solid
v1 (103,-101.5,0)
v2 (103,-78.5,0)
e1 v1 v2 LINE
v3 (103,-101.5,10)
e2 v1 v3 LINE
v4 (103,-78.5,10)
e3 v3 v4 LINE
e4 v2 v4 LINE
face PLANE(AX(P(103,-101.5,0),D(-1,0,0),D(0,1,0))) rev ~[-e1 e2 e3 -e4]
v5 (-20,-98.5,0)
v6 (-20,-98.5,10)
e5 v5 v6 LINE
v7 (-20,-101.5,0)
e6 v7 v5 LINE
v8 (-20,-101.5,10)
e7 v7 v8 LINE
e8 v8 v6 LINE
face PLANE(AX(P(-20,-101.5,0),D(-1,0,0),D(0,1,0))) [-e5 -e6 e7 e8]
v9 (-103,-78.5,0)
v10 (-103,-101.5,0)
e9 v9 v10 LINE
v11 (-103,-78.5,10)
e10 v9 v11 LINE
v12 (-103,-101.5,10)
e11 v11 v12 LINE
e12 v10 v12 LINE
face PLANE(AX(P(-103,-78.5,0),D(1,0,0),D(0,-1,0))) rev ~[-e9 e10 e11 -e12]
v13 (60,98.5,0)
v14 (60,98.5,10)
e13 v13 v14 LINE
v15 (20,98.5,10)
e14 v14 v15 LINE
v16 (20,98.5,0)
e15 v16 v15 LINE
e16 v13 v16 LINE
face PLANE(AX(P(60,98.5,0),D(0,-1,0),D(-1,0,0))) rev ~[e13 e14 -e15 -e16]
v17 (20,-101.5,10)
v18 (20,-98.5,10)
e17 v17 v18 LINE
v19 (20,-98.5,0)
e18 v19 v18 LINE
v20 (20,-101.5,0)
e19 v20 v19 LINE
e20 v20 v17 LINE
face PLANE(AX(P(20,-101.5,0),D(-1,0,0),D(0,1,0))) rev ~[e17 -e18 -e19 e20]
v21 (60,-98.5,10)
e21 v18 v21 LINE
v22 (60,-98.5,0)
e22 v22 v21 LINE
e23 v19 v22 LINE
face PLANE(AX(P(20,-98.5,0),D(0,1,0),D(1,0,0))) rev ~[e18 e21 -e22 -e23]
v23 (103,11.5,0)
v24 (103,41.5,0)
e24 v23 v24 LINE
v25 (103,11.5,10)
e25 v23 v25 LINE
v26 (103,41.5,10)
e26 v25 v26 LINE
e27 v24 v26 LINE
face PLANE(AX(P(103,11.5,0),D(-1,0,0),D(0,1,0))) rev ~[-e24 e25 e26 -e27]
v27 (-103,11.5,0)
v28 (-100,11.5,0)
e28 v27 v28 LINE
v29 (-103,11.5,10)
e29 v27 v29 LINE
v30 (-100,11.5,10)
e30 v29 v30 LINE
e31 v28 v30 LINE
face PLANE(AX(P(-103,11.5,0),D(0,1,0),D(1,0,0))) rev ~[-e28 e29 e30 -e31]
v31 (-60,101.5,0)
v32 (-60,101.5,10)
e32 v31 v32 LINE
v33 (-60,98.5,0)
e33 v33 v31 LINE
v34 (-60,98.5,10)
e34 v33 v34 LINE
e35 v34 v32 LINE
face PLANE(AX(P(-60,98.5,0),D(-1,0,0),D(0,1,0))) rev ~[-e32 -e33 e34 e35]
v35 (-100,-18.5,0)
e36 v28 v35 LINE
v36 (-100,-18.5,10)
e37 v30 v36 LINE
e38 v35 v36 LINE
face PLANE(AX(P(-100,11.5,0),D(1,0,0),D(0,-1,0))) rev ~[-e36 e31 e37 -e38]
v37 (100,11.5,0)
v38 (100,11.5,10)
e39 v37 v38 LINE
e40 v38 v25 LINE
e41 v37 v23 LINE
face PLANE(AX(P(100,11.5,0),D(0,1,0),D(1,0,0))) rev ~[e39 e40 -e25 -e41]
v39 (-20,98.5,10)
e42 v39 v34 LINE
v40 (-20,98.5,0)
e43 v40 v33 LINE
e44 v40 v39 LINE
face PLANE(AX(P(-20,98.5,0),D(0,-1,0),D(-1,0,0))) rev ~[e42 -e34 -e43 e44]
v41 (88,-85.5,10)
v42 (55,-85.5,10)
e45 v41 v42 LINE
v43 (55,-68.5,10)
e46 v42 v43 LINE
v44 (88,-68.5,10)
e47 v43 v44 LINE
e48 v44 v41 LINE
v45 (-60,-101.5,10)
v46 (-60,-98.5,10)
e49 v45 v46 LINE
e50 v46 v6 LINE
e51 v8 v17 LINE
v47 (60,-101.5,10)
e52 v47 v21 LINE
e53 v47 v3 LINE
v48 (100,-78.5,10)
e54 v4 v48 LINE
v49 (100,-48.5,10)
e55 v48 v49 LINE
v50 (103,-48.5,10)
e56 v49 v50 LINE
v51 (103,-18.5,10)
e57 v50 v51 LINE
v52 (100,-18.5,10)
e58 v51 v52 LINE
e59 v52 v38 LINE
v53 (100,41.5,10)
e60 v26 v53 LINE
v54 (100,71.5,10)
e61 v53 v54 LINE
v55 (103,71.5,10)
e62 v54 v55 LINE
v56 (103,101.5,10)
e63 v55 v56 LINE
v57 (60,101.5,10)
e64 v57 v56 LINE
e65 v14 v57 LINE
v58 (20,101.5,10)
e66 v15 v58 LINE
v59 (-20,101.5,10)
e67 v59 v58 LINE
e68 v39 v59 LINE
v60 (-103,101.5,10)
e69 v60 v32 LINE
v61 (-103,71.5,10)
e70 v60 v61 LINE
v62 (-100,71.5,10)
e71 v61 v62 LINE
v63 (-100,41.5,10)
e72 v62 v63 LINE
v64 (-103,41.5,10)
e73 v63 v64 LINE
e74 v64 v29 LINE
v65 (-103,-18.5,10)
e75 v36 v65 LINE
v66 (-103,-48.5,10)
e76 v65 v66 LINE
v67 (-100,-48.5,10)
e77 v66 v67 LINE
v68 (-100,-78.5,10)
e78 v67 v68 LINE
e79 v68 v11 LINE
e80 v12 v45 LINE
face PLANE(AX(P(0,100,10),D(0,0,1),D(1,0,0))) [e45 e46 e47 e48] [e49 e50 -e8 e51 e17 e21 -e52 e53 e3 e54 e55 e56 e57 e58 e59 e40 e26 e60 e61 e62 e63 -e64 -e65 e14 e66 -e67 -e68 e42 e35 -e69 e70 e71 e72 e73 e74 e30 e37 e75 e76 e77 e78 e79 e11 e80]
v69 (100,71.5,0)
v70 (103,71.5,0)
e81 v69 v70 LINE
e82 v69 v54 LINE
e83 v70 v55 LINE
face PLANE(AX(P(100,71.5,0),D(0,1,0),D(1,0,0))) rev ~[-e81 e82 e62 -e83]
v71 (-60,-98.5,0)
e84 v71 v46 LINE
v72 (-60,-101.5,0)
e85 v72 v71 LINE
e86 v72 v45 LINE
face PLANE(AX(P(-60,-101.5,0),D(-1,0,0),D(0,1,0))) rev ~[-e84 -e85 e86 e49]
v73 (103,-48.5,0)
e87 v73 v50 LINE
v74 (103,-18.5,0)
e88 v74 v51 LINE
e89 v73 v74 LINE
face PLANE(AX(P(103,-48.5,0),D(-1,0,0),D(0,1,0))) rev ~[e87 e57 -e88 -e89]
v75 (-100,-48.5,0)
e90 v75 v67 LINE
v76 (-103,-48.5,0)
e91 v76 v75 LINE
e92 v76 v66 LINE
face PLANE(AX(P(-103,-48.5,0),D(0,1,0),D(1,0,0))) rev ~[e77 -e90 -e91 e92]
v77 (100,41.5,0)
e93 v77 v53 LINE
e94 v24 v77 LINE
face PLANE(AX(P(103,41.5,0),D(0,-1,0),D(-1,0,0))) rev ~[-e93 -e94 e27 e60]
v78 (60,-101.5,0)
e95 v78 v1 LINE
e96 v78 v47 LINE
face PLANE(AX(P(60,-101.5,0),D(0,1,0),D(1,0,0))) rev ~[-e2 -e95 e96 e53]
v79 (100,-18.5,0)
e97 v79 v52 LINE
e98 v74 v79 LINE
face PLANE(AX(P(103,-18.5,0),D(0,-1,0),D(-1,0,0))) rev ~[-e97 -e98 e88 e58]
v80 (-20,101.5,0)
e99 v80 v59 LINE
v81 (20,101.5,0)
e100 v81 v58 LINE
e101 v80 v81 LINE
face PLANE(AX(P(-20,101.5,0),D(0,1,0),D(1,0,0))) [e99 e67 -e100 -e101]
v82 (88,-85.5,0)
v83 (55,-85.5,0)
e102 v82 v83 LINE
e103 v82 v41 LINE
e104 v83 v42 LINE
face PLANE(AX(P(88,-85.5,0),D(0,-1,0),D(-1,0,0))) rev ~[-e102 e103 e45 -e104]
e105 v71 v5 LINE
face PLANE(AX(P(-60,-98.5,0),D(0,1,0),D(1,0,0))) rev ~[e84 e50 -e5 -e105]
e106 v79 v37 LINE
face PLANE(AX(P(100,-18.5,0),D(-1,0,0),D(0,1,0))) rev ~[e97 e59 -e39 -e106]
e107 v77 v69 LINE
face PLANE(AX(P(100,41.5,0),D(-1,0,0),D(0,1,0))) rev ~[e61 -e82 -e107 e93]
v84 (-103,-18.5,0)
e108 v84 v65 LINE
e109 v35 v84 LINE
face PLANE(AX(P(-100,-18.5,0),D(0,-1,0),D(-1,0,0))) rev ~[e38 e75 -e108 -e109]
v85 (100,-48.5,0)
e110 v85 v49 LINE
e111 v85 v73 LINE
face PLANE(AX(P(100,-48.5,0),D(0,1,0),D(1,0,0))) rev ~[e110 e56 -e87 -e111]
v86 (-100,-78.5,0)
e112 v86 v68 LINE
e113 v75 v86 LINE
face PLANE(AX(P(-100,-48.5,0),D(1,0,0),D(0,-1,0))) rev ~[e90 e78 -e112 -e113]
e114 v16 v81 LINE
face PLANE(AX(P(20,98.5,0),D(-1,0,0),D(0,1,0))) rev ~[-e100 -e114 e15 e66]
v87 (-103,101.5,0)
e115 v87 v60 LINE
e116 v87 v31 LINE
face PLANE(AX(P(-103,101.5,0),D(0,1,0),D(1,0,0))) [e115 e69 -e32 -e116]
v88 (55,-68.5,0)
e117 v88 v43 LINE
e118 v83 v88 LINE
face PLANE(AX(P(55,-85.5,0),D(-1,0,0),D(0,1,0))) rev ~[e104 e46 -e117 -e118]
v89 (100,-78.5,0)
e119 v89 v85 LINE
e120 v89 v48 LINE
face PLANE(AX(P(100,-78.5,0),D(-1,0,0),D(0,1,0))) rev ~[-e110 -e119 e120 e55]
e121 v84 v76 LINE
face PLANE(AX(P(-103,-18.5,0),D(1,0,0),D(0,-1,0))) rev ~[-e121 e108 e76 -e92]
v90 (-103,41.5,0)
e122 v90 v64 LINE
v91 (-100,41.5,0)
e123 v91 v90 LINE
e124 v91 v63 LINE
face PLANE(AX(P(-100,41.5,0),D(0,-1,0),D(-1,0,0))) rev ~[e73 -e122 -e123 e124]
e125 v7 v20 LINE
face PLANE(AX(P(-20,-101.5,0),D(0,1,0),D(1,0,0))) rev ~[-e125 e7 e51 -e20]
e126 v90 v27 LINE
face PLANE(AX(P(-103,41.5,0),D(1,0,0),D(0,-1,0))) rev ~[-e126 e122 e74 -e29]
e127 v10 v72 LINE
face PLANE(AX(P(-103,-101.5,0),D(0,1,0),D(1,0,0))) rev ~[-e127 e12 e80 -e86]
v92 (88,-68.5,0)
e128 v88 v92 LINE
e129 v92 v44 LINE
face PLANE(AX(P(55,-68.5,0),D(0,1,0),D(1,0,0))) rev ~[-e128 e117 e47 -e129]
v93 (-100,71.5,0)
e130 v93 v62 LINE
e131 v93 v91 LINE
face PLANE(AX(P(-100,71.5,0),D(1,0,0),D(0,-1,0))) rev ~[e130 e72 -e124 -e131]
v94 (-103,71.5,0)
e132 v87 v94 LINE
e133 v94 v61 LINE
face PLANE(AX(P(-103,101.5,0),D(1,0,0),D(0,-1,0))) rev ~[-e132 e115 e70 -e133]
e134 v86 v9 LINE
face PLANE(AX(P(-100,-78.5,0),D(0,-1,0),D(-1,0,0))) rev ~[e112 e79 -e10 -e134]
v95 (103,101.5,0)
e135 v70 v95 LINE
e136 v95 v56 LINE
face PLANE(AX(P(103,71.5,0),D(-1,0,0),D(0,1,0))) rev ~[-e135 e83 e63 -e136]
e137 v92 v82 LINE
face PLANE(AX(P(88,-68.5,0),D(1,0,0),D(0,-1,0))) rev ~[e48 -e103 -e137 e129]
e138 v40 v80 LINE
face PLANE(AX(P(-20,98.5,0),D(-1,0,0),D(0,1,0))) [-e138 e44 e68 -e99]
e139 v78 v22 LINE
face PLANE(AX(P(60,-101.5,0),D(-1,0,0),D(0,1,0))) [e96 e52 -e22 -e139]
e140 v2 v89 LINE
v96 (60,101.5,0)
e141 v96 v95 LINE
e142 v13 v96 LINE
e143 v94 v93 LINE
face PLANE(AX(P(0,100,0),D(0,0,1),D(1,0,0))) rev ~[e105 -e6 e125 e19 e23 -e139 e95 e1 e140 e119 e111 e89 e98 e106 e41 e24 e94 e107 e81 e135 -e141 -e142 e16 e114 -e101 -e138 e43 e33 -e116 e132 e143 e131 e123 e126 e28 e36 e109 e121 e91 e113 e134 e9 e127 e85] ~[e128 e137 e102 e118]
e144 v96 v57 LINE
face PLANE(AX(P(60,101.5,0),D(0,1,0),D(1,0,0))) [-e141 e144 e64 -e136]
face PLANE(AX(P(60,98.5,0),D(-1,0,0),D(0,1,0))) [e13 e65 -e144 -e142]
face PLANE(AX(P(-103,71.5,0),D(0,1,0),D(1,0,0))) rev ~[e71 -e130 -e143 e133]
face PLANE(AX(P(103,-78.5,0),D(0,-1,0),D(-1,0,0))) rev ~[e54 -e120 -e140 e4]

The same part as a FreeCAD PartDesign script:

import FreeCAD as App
import Part
import Sketcher

V = App.Vector

doc = App.newDocument("Part")
body = doc.addObject("PartDesign::Body", "Body")

sketch1 = body.newObject("Sketcher::SketchObject", "Sketch")
sketch1.AttachmentSupport = (doc.getObject("XY_Plane"), [""])
sketch1.MapMode = "FlatFace"
sketch1.addGeometry(Part.LineSegment(V(-20, 101.5, 0), V(-20, 98.5, 0)), False)
sketch1.addGeometry(Part.LineSegment(V(-20, 98.5, 0), V(-60, 98.5, 0)), False)
sketch1.addGeometry(Part.LineSegment(V(-60, 98.5, 0), V(-60, 101.5, 0)), False)
sketch1.addGeometry(Part.LineSegment(V(-60, 101.5, 0), V(-103, 101.5, 0)), False)
sketch1.addGeometry(Part.LineSegment(V(-103, 101.5, 0), V(-103, 71.5, 0)), False)
sketch1.addGeometry(Part.LineSegment(V(-103, 71.5, 0), V(-100, 71.5, 0)), False)
sketch1.addGeometry(Part.LineSegment(V(-100, 71.5, 0), V(-100, 41.5, 0)), False)
sketch1.addGeometry(Part.LineSegment(V(-100, 41.5, 0), V(-103, 41.5, 0)), False)
sketch1.addGeometry(Part.LineSegment(V(-103, 41.5, 0), V(-103, 11.5, 0)), False)
sketch1.addGeometry(Part.LineSegment(V(-103, 11.5, 0), V(-100, 11.5, 0)), False)
sketch1.addGeometry(Part.LineSegment(V(-100, 11.5, 0), V(-100, -18.5, 0)), False)
sketch1.addGeometry(Part.LineSegment(V(-100, -18.5, 0), V(-103, -18.5, 0)), False)
sketch1.addGeometry(Part.LineSegment(V(-103, -18.5, 0), V(-103, -48.5, 0)), False)
sketch1.addGeometry(Part.LineSegment(V(-103, -48.5, 0), V(-100, -48.5, 0)), False)
sketch1.addGeometry(Part.LineSegment(V(-100, -48.5, 0), V(-100, -78.5, 0)), False)
sketch1.addGeometry(Part.LineSegment(V(-100, -78.5, 0), V(-103, -78.5, 0)), False)
sketch1.addGeometry(Part.LineSegment(V(-103, -78.5, 0), V(-103, -101.5, 0)), False)
sketch1.addGeometry(Part.LineSegment(V(-103, -101.5, 0), V(-60, -101.5, 0)), False)
sketch1.addGeometry(Part.LineSegment(V(-60, -101.5, 0), V(-60, -98.5, 0)), False)
sketch1.addGeometry(Part.LineSegment(V(-60, -98.5, 0), V(-20, -98.5, 0)), False)
sketch1.addGeometry(Part.LineSegment(V(-20, -98.5, 0), V(-20, -101.5, 0)), False)
sketch1.addGeometry(Part.LineSegment(V(-20, -101.5, 0), V(20, -101.5, 0)), False)
sketch1.addGeometry(Part.LineSegment(V(20, -101.5, 0), V(20, -98.5, 0)), False)
sketch1.addGeometry(Part.LineSegment(V(20, -98.5, 0), V(60, -98.5, 0)), False)
sketch1.addGeometry(Part.LineSegment(V(60, -98.5, 0), V(60, -101.5, 0)), False)
sketch1.addGeometry(Part.LineSegment(V(60, -101.5, 0), V(103, -101.5, 0)), False)
sketch1.addGeometry(Part.LineSegment(V(103, -101.5, 0), V(103, -78.5, 0)), False)
sketch1.addGeometry(Part.LineSegment(V(103, -78.5, 0), V(100, -78.5, 0)), False)
sketch1.addGeometry(Part.LineSegment(V(100, -78.5, 0), V(100, -48.5, 0)), False)
sketch1.addGeometry(Part.LineSegment(V(100, -48.5, 0), V(103, -48.5, 0)), False)
sketch1.addGeometry(Part.LineSegment(V(103, -48.5, 0), V(103, -18.5, 0)), False)
sketch1.addGeometry(Part.LineSegment(V(103, -18.5, 0), V(100, -18.5, 0)), False)
sketch1.addGeometry(Part.LineSegment(V(100, -18.5, 0), V(100, 11.5, 0)), False)
sketch1.addGeometry(Part.LineSegment(V(100, 11.5, 0), V(103, 11.5, 0)), False)
sketch1.addGeometry(Part.LineSegment(V(103, 11.5, 0), V(103, 41.5, 0)), False)
sketch1.addGeometry(Part.LineSegment(V(103, 41.5, 0), V(100, 41.5, 0)), False)
sketch1.addGeometry(Part.LineSegment(V(100, 41.5, 0), V(100, 71.5, 0)), False)
sketch1.addGeometry(Part.LineSegment(V(100, 71.5, 0), V(103, 71.5, 0)), False)
sketch1.addGeometry(Part.LineSegment(V(103, 71.5, 0), V(103, 101.5, 0)), False)
sketch1.addGeometry(Part.LineSegment(V(103, 101.5, 0), V(60, 101.5, 0)), False)
sketch1.addGeometry(Part.LineSegment(V(60, 101.5, 0), V(60, 98.5, 0)), False)
sketch1.addGeometry(Part.LineSegment(V(60, 98.5, 0), V(20, 98.5, 0)), False)
sketch1.addGeometry(Part.LineSegment(V(20, 98.5, 0), V(20, 101.5, 0)), False)
sketch1.addGeometry(Part.LineSegment(V(20, 101.5, 0), V(-20, 101.5, 0)), False)
sketch1.addGeometry(Part.LineSegment(V(88, -68.5, 0), V(88, -85.5, 0)), False)
sketch1.addGeometry(Part.LineSegment(V(88, -85.5, 0), V(55, -85.5, 0)), False)
sketch1.addGeometry(Part.LineSegment(V(55, -85.5, 0), V(55, -68.5, 0)), False)
sketch1.addGeometry(Part.LineSegment(V(55, -68.5, 0), V(88, -68.5, 0)), False)
sketch1.addConstraint(Sketcher.Constraint("Coincident", 0, 2, 1, 1))
sketch1.addConstraint(Sketcher.Constraint("Coincident", 1, 2, 2, 1))
sketch1.addConstraint(Sketcher.Constraint("Coincident", 2, 2, 3, 1))
sketch1.addConstraint(Sketcher.Constraint("Coincident", 3, 2, 4, 1))
sketch1.addConstraint(Sketcher.Constraint("Coincident", 4, 2, 5, 1))
sketch1.addConstraint(Sketcher.Constraint("Coincident", 5, 2, 6, 1))
sketch1.addConstraint(Sketcher.Constraint("Coincident", 6, 2, 7, 1))
sketch1.addConstraint(Sketcher.Constraint("Coincident", 7, 2, 8, 1))
sketch1.addConstraint(Sketcher.Constraint("Coincident", 8, 2, 9, 1))
sketch1.addConstraint(Sketcher.Constraint("Coincident", 9, 2, 10, 1))
sketch1.addConstraint(Sketcher.Constraint("Coincident", 10, 2, 11, 1))
sketch1.addConstraint(Sketcher.Constraint("Coincident", 11, 2, 12, 1))
sketch1.addConstraint(Sketcher.Constraint("Coincident", 12, 2, 13, 1))
sketch1.addConstraint(Sketcher.Constraint("Coincident", 13, 2, 14, 1))
sketch1.addConstraint(Sketcher.Constraint("Coincident", 14, 2, 15, 1))
sketch1.addConstraint(Sketcher.Constraint("Coincident", 15, 2, 16, 1))
sketch1.addConstraint(Sketcher.Constraint("Coincident", 16, 2, 17, 1))
sketch1.addConstraint(Sketcher.Constraint("Coincident", 17, 2, 18, 1))
sketch1.addConstraint(Sketcher.Constraint("Coincident", 18, 2, 19, 1))
sketch1.addConstraint(Sketcher.Constraint("Coincident", 19, 2, 20, 1))
sketch1.addConstraint(Sketcher.Constraint("Coincident", 20, 2, 21, 1))
sketch1.addConstraint(Sketcher.Constraint("Coincident", 21, 2, 22, 1))
sketch1.addConstraint(Sketcher.Constraint("Coincident", 22, 2, 23, 1))
sketch1.addConstraint(Sketcher.Constraint("Coincident", 23, 2, 24, 1))
sketch1.addConstraint(Sketcher.Constraint("Coincident", 24, 2, 25, 1))
sketch1.addConstraint(Sketcher.Constraint("Coincident", 25, 2, 26, 1))
sketch1.addConstraint(Sketcher.Constraint("Coincident", 26, 2, 27, 1))
sketch1.addConstraint(Sketcher.Constraint("Coincident", 27, 2, 28, 1))
sketch1.addConstraint(Sketcher.Constraint("Coincident", 28, 2, 29, 1))
sketch1.addConstraint(Sketcher.Constraint("Coincident", 29, 2, 30, 1))
sketch1.addConstraint(Sketcher.Constraint("Coincident", 30, 2, 31, 1))
sketch1.addConstraint(Sketcher.Constraint("Coincident", 31, 2, 32, 1))
sketch1.addConstraint(Sketcher.Constraint("Coincident", 32, 2, 33, 1))
sketch1.addConstraint(Sketcher.Constraint("Coincident", 33, 2, 34, 1))
sketch1.addConstraint(Sketcher.Constraint("Coincident", 34, 2, 35, 1))
sketch1.addConstraint(Sketcher.Constraint("Coincident", 35, 2, 36, 1))
sketch1.addConstraint(Sketcher.Constraint("Coincident", 36, 2, 37, 1))
sketch1.addConstraint(Sketcher.Constraint("Coincident", 37, 2, 38, 1))
sketch1.addConstraint(Sketcher.Constraint("Coincident", 38, 2, 39, 1))
sketch1.addConstraint(Sketcher.Constraint("Coincident", 39, 2, 40, 1))
sketch1.addConstraint(Sketcher.Constraint("Coincident", 40, 2, 41, 1))
sketch1.addConstraint(Sketcher.Constraint("Coincident", 41, 2, 42, 1))
sketch1.addConstraint(Sketcher.Constraint("Coincident", 42, 2, 43, 1))
sketch1.addConstraint(Sketcher.Constraint("Coincident", 43, 2, 0, 1))
sketch1.addConstraint(Sketcher.Constraint("Coincident", 44, 2, 45, 1))
sketch1.addConstraint(Sketcher.Constraint("Coincident", 45, 2, 46, 1))
sketch1.addConstraint(Sketcher.Constraint("Coincident", 46, 2, 47, 1))
sketch1.addConstraint(Sketcher.Constraint("Coincident", 47, 2, 44, 1))
sketch1.addConstraint(Sketcher.Constraint("Vertical", 0))
sketch1.addConstraint(Sketcher.Constraint("Horizontal", 1))
sketch1.addConstraint(Sketcher.Constraint("Vertical", 2))
sketch1.addConstraint(Sketcher.Constraint("Horizontal", 3))
sketch1.addConstraint(Sketcher.Constraint("Vertical", 4))
sketch1.addConstraint(Sketcher.Constraint("Horizontal", 5))
sketch1.addConstraint(Sketcher.Constraint("Vertical", 6))
sketch1.addConstraint(Sketcher.Constraint("Horizontal", 7))
sketch1.addConstraint(Sketcher.Constraint("Vertical", 8))
sketch1.addConstraint(Sketcher.Constraint("Horizontal", 9))
sketch1.addConstraint(Sketcher.Constraint("Vertical", 10))
sketch1.addConstraint(Sketcher.Constraint("Horizontal", 11))
sketch1.addConstraint(Sketcher.Constraint("Vertical", 12))
sketch1.addConstraint(Sketcher.Constraint("Horizontal", 13))
sketch1.addConstraint(Sketcher.Constraint("Vertical", 14))
sketch1.addConstraint(Sketcher.Constraint("Horizontal", 15))
sketch1.addConstraint(Sketcher.Constraint("Vertical", 16))
sketch1.addConstraint(Sketcher.Constraint("Horizontal", 17))
sketch1.addConstraint(Sketcher.Constraint("Vertical", 18))
sketch1.addConstraint(Sketcher.Constraint("Horizontal", 19))
sketch1.addConstraint(Sketcher.Constraint("Vertical", 20))
sketch1.addConstraint(Sketcher.Constraint("Horizontal", 21))
sketch1.addConstraint(Sketcher.Constraint("Vertical", 22))
sketch1.addConstraint(Sketcher.Constraint("Horizontal", 23))
sketch1.addConstraint(Sketcher.Constraint("Vertical", 24))
sketch1.addConstraint(Sketcher.Constraint("Horizontal", 25))
sketch1.addConstraint(Sketcher.Constraint("Vertical", 26))
sketch1.addConstraint(Sketcher.Constraint("Horizontal", 27))
sketch1.addConstraint(Sketcher.Constraint("Vertical", 28))
sketch1.addConstraint(Sketcher.Constraint("Horizontal", 29))
sketch1.addConstraint(Sketcher.Constraint("Vertical", 30))
sketch1.addConstraint(Sketcher.Constraint("Horizontal", 31))
sketch1.addConstraint(Sketcher.Constraint("Vertical", 32))
sketch1.addConstraint(Sketcher.Constraint("Horizontal", 33))
sketch1.addConstraint(Sketcher.Constraint("Vertical", 34))
sketch1.addConstraint(Sketcher.Constraint("Horizontal", 35))
sketch1.addConstraint(Sketcher.Constraint("Vertical", 36))
sketch1.addConstraint(Sketcher.Constraint("Horizontal", 37))
sketch1.addConstraint(Sketcher.Constraint("Vertical", 38))
sketch1.addConstraint(Sketcher.Constraint("Horizontal", 39))
sketch1.addConstraint(Sketcher.Constraint("Vertical", 40))
sketch1.addConstraint(Sketcher.Constraint("Horizontal", 41))
sketch1.addConstraint(Sketcher.Constraint("Vertical", 42))
sketch1.addConstraint(Sketcher.Constraint("Horizontal", 43))
sketch1.addConstraint(Sketcher.Constraint("Vertical", 44))
sketch1.addConstraint(Sketcher.Constraint("Horizontal", 45))
sketch1.addConstraint(Sketcher.Constraint("Vertical", 46))
sketch1.addConstraint(Sketcher.Constraint("Horizontal", 47))
sketch1.addConstraint(Sketcher.Constraint("Symmetric", 0, 2, 22, 2, -1, 1))
sketch1.addConstraint(Sketcher.Constraint("Symmetric", 2, 2, 24, 2, -1, 1))
sketch1.addConstraint(Sketcher.Constraint("Symmetric", 16, 2, 38, 2, -1, 1))
sketch1.addConstraint(Sketcher.Constraint("Symmetric", 18, 2, 40, 2, -1, 1))
sketch1.addConstraint(Sketcher.Constraint("Symmetric", 20, 2, 42, 2, -1, 1))
sketch1.addConstraint(Sketcher.Constraint("Symmetric", 19, 2, 22, 2, -2))
sketch1.addConstraint(Sketcher.Constraint("Symmetric", 17, 2, 24, 2, -2))
sketch1.addConstraint(Sketcher.Constraint("Symmetric", 15, 2, 26, 2, -2))
sketch1.addConstraint(Sketcher.Constraint("Symmetric", 13, 2, 28, 2, -2))
sketch1.addConstraint(Sketcher.Constraint("Symmetric", 11, 2, 30, 2, -2))
sketch1.addConstraint(Sketcher.Constraint("Symmetric", 9, 2, 32, 2, -2))
sketch1.addConstraint(Sketcher.Constraint("Symmetric", 7, 2, 34, 2, -2))
sketch1.addConstraint(Sketcher.Constraint("Symmetric", 5, 2, 36, 2, -2))
sketch1.addConstraint(Sketcher.Constraint("Horizontal", 17, 2, 20, 2))
sketch1.addConstraint(Sketcher.Constraint("Vertical", 4, 2, 7, 2))
sketch1.addConstraint(Sketcher.Constraint("Vertical", 6, 2, 9, 2))
sketch1.addConstraint(Sketcher.Constraint("Vertical", 8, 2, 11, 2))
sketch1.addConstraint(Sketcher.Constraint("Vertical", 10, 2, 13, 2))
sketch1.addConstraint(Sketcher.Constraint("Vertical", 12, 2, 15, 2))
sketch1.addConstraint(Sketcher.Constraint("Equal", 19, 21))
sketch1.addConstraint(Sketcher.Constraint("Equal", 37, 0))
sketch1.addConstraint(Sketcher.Constraint("Equal", 4, 6))
sketch1.addConstraint(Sketcher.Constraint("Equal", 6, 8))
sketch1.addConstraint(Sketcher.Constraint("Equal", 8, 10))
sketch1.addConstraint(Sketcher.Constraint("Equal", 10, 12))
sketch1.addConstraint(Sketcher.Constraint("Equal", 12, 14))
sketch1.addConstraint(Sketcher.Constraint("DistanceX", 1, 2, 1, 1, 40.0))
sketch1.addConstraint(Sketcher.Constraint("DistanceX", 3, 2, 3, 1, 43.0))
sketch1.addConstraint(Sketcher.Constraint("DistanceX", 5, 1, 5, 2, 3.0))
sketch1.addConstraint(Sketcher.Constraint("DistanceX", 45, 2, 45, 1, 33.0))
sketch1.addConstraint(Sketcher.Constraint("DistanceY", 4, 2, 4, 1, 30.0))
sketch1.addConstraint(Sketcher.Constraint("DistanceY", 16, 2, 16, 1, 23.0))
sketch1.addConstraint(Sketcher.Constraint("DistanceY", 44, 2, 44, 1, 17.0))
sketch1.addConstraint(Sketcher.Constraint("DistanceX", -1, 1, 44, 2, 88.0))
sketch1.addConstraint(Sketcher.Constraint("DistanceY", 44, 2, 27, 2, 7.0))
pad1 = body.newObject("PartDesign::Pad", "Pad")
pad1.Profile = sketch1
pad1.Length = 10

doc.recompute()
